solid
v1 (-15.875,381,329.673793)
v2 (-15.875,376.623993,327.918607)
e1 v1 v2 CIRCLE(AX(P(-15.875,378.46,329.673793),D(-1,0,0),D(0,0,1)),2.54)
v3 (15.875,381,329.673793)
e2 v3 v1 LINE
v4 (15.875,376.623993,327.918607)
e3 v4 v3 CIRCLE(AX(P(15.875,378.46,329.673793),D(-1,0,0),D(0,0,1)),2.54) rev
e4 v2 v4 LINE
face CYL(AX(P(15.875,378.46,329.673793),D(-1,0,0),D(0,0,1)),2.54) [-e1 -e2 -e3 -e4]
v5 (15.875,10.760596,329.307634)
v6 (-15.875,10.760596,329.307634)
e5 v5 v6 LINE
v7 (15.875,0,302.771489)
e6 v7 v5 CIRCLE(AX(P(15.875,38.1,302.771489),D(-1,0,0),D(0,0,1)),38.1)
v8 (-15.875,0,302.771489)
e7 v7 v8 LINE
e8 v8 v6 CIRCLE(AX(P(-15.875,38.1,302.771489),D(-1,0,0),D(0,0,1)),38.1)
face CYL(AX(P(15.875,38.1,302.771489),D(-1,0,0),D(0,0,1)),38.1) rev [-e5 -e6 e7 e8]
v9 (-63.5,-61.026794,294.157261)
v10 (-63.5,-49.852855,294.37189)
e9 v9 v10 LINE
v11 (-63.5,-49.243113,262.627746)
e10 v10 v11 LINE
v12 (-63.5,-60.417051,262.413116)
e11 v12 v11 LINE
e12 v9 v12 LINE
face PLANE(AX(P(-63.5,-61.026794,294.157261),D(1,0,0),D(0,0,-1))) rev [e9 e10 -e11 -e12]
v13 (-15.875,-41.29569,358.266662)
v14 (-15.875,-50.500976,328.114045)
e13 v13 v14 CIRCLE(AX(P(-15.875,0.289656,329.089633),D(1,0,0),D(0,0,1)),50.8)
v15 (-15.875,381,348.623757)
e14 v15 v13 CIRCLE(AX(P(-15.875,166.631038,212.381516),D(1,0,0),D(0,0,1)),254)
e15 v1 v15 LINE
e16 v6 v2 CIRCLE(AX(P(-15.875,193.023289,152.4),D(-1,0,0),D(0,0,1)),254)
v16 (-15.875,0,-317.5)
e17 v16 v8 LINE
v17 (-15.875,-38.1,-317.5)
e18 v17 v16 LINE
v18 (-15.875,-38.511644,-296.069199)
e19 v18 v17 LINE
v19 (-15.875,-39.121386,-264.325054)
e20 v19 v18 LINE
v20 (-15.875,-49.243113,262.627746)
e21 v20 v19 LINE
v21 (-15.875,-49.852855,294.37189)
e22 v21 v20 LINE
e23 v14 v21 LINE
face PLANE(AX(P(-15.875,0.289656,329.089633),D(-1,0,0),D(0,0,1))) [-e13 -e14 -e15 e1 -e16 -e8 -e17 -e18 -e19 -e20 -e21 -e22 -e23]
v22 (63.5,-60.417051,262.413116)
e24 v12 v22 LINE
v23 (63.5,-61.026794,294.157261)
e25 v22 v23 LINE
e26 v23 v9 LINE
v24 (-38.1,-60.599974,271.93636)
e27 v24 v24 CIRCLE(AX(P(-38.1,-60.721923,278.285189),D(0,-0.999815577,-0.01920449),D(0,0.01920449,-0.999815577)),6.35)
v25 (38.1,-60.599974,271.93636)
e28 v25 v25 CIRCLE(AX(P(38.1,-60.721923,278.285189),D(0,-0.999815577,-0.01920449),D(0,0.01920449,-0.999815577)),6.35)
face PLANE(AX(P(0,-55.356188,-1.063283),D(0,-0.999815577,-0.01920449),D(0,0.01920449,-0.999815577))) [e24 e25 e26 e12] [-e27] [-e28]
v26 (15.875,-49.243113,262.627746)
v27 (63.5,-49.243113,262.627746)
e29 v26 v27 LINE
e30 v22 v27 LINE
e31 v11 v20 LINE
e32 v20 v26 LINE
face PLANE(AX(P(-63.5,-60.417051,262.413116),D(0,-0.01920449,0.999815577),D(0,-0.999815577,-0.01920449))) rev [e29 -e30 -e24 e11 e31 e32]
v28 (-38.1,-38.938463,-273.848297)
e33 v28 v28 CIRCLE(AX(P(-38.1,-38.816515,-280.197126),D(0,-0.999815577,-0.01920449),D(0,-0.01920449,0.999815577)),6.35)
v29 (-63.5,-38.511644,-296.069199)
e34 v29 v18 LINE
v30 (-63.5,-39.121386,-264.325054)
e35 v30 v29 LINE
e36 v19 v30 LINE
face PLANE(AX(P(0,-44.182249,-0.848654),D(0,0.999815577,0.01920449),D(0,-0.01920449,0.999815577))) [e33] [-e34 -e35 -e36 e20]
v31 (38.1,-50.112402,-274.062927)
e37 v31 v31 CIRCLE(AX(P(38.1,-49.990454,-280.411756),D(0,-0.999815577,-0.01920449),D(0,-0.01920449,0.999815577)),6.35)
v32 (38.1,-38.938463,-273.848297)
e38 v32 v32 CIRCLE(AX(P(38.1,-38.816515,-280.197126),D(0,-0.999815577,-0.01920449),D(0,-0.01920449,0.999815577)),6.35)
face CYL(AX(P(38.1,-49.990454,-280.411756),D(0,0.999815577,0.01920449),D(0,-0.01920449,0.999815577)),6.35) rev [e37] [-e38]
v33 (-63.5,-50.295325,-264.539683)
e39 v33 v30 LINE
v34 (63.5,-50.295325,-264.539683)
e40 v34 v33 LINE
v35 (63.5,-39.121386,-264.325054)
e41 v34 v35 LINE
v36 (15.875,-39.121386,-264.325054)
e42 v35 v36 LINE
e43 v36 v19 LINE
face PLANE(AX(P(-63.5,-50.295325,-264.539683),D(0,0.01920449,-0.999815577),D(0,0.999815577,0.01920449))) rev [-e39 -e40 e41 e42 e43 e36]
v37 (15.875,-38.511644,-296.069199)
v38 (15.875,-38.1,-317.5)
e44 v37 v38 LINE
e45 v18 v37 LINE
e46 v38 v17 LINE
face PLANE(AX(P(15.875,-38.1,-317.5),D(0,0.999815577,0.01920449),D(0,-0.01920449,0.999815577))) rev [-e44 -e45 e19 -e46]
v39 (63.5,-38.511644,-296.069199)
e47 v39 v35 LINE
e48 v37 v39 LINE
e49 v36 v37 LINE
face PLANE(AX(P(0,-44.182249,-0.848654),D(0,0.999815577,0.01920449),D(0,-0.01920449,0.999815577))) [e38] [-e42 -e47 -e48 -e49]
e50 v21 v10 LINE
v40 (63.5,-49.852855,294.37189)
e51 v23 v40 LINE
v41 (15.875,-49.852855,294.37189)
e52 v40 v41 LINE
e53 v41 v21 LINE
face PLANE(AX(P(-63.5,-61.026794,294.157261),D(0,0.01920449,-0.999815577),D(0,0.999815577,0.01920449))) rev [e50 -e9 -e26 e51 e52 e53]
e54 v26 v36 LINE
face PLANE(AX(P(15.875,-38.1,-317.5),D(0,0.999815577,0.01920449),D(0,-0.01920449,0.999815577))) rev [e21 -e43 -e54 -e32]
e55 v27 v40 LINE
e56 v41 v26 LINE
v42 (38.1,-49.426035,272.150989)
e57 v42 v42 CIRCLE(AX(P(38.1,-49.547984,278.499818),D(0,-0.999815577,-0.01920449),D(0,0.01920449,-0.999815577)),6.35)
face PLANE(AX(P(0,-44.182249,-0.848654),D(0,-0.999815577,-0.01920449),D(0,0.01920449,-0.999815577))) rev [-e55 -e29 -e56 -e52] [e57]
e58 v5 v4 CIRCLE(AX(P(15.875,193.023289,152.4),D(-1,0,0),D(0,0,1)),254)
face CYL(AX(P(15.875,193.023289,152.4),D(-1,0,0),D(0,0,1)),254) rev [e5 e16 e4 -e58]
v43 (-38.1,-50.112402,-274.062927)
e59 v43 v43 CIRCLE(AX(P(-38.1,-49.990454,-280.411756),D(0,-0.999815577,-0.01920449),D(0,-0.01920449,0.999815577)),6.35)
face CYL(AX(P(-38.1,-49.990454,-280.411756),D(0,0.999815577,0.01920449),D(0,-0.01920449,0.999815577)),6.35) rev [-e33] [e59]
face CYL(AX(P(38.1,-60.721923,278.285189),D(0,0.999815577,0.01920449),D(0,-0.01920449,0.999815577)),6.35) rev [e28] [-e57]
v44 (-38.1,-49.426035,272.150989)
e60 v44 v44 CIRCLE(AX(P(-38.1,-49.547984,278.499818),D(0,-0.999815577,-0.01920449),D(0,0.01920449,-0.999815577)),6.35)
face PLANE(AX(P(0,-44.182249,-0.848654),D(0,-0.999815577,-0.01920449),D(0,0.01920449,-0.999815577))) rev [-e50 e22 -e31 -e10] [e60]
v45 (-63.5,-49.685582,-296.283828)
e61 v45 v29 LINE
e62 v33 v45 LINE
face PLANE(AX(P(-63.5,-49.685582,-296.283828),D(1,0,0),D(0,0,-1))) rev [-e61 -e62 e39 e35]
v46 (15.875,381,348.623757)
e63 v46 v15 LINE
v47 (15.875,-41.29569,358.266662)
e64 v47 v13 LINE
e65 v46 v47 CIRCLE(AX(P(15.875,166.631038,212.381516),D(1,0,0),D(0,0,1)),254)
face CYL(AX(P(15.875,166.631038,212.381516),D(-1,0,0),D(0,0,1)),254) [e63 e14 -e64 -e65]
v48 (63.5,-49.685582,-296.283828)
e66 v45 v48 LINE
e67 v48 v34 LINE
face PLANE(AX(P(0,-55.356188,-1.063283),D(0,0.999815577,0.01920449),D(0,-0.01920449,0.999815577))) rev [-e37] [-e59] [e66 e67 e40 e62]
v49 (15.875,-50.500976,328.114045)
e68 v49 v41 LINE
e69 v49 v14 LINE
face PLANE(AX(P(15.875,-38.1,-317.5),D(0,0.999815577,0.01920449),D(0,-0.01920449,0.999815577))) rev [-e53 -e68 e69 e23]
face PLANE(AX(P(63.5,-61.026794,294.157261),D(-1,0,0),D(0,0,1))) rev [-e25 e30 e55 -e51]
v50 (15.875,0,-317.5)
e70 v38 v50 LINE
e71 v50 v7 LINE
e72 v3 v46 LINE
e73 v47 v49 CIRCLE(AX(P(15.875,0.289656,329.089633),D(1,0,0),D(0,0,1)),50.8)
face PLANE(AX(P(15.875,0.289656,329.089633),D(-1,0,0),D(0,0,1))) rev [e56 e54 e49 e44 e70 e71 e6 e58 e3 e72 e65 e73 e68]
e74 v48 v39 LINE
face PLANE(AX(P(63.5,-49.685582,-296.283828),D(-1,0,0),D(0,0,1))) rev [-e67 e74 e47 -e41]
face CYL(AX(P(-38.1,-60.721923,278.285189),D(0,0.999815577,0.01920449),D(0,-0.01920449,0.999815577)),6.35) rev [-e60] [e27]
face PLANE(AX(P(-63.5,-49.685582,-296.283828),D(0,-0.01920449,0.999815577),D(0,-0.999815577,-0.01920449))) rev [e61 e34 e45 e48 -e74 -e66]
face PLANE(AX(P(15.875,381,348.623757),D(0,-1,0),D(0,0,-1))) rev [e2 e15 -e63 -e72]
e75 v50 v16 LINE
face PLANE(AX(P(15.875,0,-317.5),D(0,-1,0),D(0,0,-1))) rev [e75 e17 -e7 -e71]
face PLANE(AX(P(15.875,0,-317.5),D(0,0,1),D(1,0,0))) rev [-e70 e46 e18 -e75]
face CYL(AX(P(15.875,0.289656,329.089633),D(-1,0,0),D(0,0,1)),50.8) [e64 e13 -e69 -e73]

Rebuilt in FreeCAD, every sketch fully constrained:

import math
import FreeCAD as App
import Part
import Sketcher
from FreeCAD import Vector
Q = App.Units.Quantity


def edges_at(feature, points):
    """Names of the edges that pass closest to the given points."""
    edges = feature.Shape.Edges
    near = lambda p: min(range(len(edges)), key=lambda i: edges[i].distToShape(Part.Vertex(*p))[0])
    return sorted({f"Edge{near(p) + 1}" for p in points})

doc = App.newDocument("Part")
body = doc.addObject("PartDesign::Body", "Body")

# Sketch on YZ plane
sketch1 = doc.addObject("Sketcher::SketchObject", "Sketch")
body.addObject(sketch1)
sketch1.AttachmentSupport = (doc.YZ_Plane, [""])
sketch1.MapMode = "FlatFace"
sketch1.addGeometry(Part.LineSegment(Vector(0, -318, 0), Vector(0, 303, 0)), False)
sketch1.addGeometry(Part.ArcOfCircle(Part.Circle(Vector(38, 303, 0), Vector(0, 0, 1), 38), math.radians(136), math.radians(180)), False)
sketch1.addGeometry(Part.ArcOfCircle(Part.Circle(Vector(193, 152, 0), Vector(0, 0, 1), 254), math.radians(42), math.radians(136)), False)
sketch1.addGeometry(Part.LineSegment(Vector(381, 323, 0), Vector(381, 349, 0)), False)
sketch1.addGeometry(Part.ArcOfCircle(Part.Circle(Vector(167, 212, 0), Vector(0, 0, 1), 254), math.radians(32), math.radians(145)), False)
sketch1.addGeometry(Part.ArcOfCircle(Part.Circle(Vector(0, 329, 0), Vector(0, 0, 1), 51), math.radians(145), math.radians(181)), False)
sketch1.addGeometry(Part.LineSegment(Vector(-51, 328, 0), Vector(-38, -318, 0)), False)
sketch1.addGeometry(Part.LineSegment(Vector(-38, -318, 0), Vector(0, -318, 0)), False)
sketch1.addConstraint(Sketcher.Constraint("Tangent", 0, 2, 1, 2))
sketch1.addConstraint(Sketcher.Constraint("Tangent", 1, 1, 2, 2))
sketch1.addConstraint(Sketcher.Constraint("Coincident", 2, 1, 3, 1))
sketch1.addConstraint(Sketcher.Constraint("Coincident", 3, 2, 4, 1))
sketch1.addConstraint(Sketcher.Constraint("Tangent", 4, 2, 5, 1))
sketch1.addConstraint(Sketcher.Constraint("Tangent", 5, 2, 6, 1))
sketch1.addConstraint(Sketcher.Constraint("Coincident", 6, 2, 7, 1))
sketch1.addConstraint(Sketcher.Constraint("Coincident", 7, 2, 0, 1))
sketch1.addConstraint(Sketcher.Constraint("Vertical", 0))
sketch1.addConstraint(Sketcher.Constraint("Vertical", 3))
sketch1.addConstraint(Sketcher.Constraint("Horizontal", 7))
sketch1.addConstraint(Sketcher.Constraint("Equal", 2, 4))
sketch1.addConstraint(Sketcher.Constraint("PointOnObject", 0, 2, -2))
sketch1.addConstraint(Sketcher.Constraint("Radius", 2, Q("10 in")))
sketch1.addConstraint(Sketcher.Constraint("Radius", 5, Q("2 in")))
sketch1.addConstraint(Sketcher.Constraint("Radius", 1, Q("1.5 in")))
sketch1.addConstraint(Sketcher.Constraint("DistanceY", 3, 1, 3, 2, Q("1 in")))
sketch1.addConstraint(Sketcher.Constraint("DistanceX", 7, 1, 7, 2, Q("1.5 in")))
sketch1.addConstraint(Sketcher.Constraint("DistanceY", -1, 1, 2, 3, Q("6 in")))
sketch1.addConstraint(Sketcher.Constraint("DistanceX", -1, 1, 2, 1, Q("15 in")))
sketch1.addConstraint(Sketcher.Constraint("DistanceY", 6, 2, -1, 1, Q("12.5 in")))
sketch1.addConstraint(Sketcher.Constraint("DistanceY", 0, 1, 0, 2, Q("620.271489 mm")))
sketch1.addConstraint(Sketcher.Constraint("DistanceY", 5, 3, 1, 1, Q("0.218001 mm")))
sketch1.addConstraint(Sketcher.Constraint("DistanceX", -1, 1, 4, 3, Q("166.631038 mm")))
pad1 = doc.addObject("PartDesign::Pad", "Pad")
body.addObject(pad1)
pad1.Profile = sketch1
pad1.Length = Q("1.25 in")
pad1.Midplane = True

# Sketch on an angled plane
sketch2 = doc.addObject("Sketcher::SketchObject", "Sketch001")
body.addObject(sketch2)
sketch2.Placement = App.Placement(Vector(0, -44.182249, -0.848654), App.Rotation(Vector(1, 0, 0), Vector(0, -0.01920449, 0.999815577), Vector(0, -0.999815577, -0.01920449), "ZXY"))
sketch2.addGeometry(Part.LineSegment(Vector(-64, 295, 0), Vector(-64, 264, 0)), False)
sketch2.addGeometry(Part.LineSegment(Vector(-64, 264, 0), Vector(64, 264, 0)), False)
sketch2.addGeometry(Part.LineSegment(Vector(64, 264, 0), Vector(64, 295, 0)), False)
sketch2.addGeometry(Part.LineSegment(Vector(64, 295, 0), Vector(-64, 295, 0)), False)
sketch2.addGeometry(Part.Circle(Vector(-38, 279, 0), Vector(0, 0, 1), 6), False)
sketch2.addGeometry(Part.Circle(Vector(38, 279, 0), Vector(0, 0, 1), 6), False)
sketch2.addGeometry(Part.LineSegment(Vector(-64, -264, 0), Vector(-64, -295, 0)), False)
sketch2.addGeometry(Part.LineSegment(Vector(-64, -295, 0), Vector(64, -295, 0)), False)
sketch2.addGeometry(Part.LineSegment(Vector(64, -295, 0), Vector(64, -264, 0)), False)
sketch2.addGeometry(Part.LineSegment(Vector(64, -264, 0), Vector(-64, -264, 0)), False)
sketch2.addGeometry(Part.Circle(Vector(-38, -279, 0), Vector(0, 0, 1), 6), False)
sketch2.addGeometry(Part.Circle(Vector(38, -279, 0), Vector(0, 0, 1), 6), False)
sketch2.addConstraint(Sketcher.Constraint("Coincident", 0, 2, 1, 1))
sketch2.addConstraint(Sketcher.Constraint("Coincident", 1, 2, 2, 1))
sketch2.addConstraint(Sketcher.Constraint("Coincident", 2, 2, 3, 1))
sketch2.addConstraint(Sketcher.Constraint("Coincident", 3, 2, 0, 1))
sketch2.addConstraint(Sketcher.Constraint("Coincident", 6, 2, 7, 1))
sketch2.addConstraint(Sketcher.Constraint("Coincident", 7, 2, 8, 1))
sketch2.addConstraint(Sketcher.Constraint("Coincident", 8, 2, 9, 1))
sketch2.addConstraint(Sketcher.Constraint("Coincident", 9, 2, 6, 1))
sketch2.addConstraint(Sketcher.Constraint("Vertical", 0))
sketch2.addConstraint(Sketcher.Constraint("Horizontal", 1))
sketch2.addConstraint(Sketcher.Constraint("Vertical", 2))
sketch2.addConstraint(Sketcher.Constraint("Horizontal", 3))
sketch2.addConstraint(Sketcher.Constraint("Vertical", 6))
sketch2.addConstraint(Sketcher.Constraint("Horizontal", 7))
sketch2.addConstraint(Sketcher.Constraint("Vertical", 8))
sketch2.addConstraint(Sketcher.Constraint("Horizontal", 9))
sketch2.addConstraint(Sketcher.Constraint("Equal", 4, 5))
sketch2.addConstraint(Sketcher.Constraint("Equal", 5, 10))
sketch2.addConstraint(Sketcher.Constraint("Equal", 10, 11))
sketch2.addConstraint(Sketcher.Constraint("Symmetric", 5, 3, 10, 3, -1, 1))
sketch2.addConstraint(Sketcher.Constraint("Symmetric", 4, 3, 11, 3, -1, 1))
sketch2.addConstraint(Sketcher.Constraint("Symmetric", 2, 2, 6, 2, -1, 1))
sketch2.addConstraint(Sketcher.Constraint("Symmetric", 0, 2, 8, 2, -1, 1))
sketch2.addConstraint(Sketcher.Constraint("Symmetric", 4, 3, 5, 3, -2))
sketch2.addConstraint(Sketcher.Constraint("Vertical", 3, 2, 6, 2))
sketch2.addConstraint(Sketcher.Constraint("Diameter", 4, Q("0.5 in")))
sketch2.addConstraint(Sketcher.Constraint("DistanceX", 1, 1, 1, 2, Q("5 in")))
sketch2.addConstraint(Sketcher.Constraint("DistanceY", -1, 1, 4, 3, Q("11 in")))
sketch2.addConstraint(Sketcher.Constraint("DistanceX", 4, 3, 5, 3, Q("3 in")))
sketch2.addConstraint(Sketcher.Constraint("DistanceY", 6, 2, 0, 2, Q("22 in")))
sketch2.addConstraint(Sketcher.Constraint("DistanceY", 0, 2, 0, 1, Q("1.25 in")))
pad2 = doc.addObject("PartDesign::Pad", "Pad001")
body.addObject(pad2)
pad2.Profile = sketch2
pad2.Length = Q("0.44 in")
doc.recompute()

fillet = doc.addObject("PartDesign::Fillet", "Fillet")
body.addObject(fillet)
fillet.Base = (pad2, edges_at(pad2, [(0, 381, 323.224)]))
fillet.Radius = Q("0.1 in")

doc.recompute()
